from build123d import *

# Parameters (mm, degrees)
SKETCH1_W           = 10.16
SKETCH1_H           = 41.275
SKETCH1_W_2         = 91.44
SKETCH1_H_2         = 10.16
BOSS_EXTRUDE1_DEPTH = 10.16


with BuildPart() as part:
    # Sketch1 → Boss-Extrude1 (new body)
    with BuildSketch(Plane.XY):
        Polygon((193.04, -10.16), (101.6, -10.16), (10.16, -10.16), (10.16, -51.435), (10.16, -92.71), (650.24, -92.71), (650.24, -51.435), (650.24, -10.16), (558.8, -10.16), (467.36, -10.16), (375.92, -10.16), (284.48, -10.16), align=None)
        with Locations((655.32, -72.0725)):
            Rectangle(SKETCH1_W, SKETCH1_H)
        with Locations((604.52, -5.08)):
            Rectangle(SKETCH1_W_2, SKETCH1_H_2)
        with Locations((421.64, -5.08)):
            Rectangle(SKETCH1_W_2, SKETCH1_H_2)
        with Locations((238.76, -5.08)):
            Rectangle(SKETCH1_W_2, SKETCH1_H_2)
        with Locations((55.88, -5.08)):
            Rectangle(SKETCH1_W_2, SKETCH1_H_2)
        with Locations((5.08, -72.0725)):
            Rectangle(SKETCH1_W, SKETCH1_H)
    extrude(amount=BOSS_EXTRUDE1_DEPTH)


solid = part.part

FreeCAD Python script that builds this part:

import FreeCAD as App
import Part
import Sketcher
Q = App.Units.Quantity


def add_polygon(sketch, points):
    """Adds a closed chain of lines whose ends are joined by coincident constraints."""
    first, n = sketch.GeometryCount, len(points)
    for a, b in zip(points, points[1:] + points[:1]):
        sketch.addGeometry(Part.LineSegment(App.Vector(*a, 0), App.Vector(*b, 0)), False)
    for i in range(n):
        sketch.addConstraint(Sketcher.Constraint("Coincident", first + i, 2, first + (i + 1) % n, 1))

doc = App.newDocument("Part")
body = doc.addObject("PartDesign::Body", "Body")

sketch1 = body.newObject("Sketcher::SketchObject", "Sketch")
sketch1.AttachmentSupport = (doc.getObject("XY_Plane"), [""])
sketch1.MapMode = "FlatFace"
add_polygon(sketch1, [(660.4, -92.71), (660.4, -51.435), (650.24, -51.435), (650.24, 0), (558.8, 0), (558.8, -10.16), (467.36, -10.16), (467.36, 0), (375.92, 0), (375.92, -10.16), (284.48, -10.16), (284.48, 0), (193.04, 0), (193.04, -10.16), (101.6, -10.16), (101.6, 0), (10.16, 0), (10.16, -51.435), (0, -51.435), (0, -92.71)])
sketch1.addConstraint([
    Sketcher.Constraint("Vertical", 0),
    Sketcher.Constraint("Horizontal", 1),
    Sketcher.Constraint("Vertical", 2),
    Sketcher.Constraint("Horizontal", 3),
    Sketcher.Constraint("Vertical", 4),
    Sketcher.Constraint("Horizontal", 5),
    Sketcher.Constraint("Vertical", 6),
    Sketcher.Constraint("Horizontal", 7),
    Sketcher.Constraint("Vertical", 8),
    Sketcher.Constraint("Horizontal", 9),
    Sketcher.Constraint("Vertical", 10),
    Sketcher.Constraint("Horizontal", 11),
    Sketcher.Constraint("Vertical", 12),
    Sketcher.Constraint("Horizontal", 13),
    Sketcher.Constraint("Vertical", 14),
    Sketcher.Constraint("Horizontal", 15),
    Sketcher.Constraint("Vertical", 16),
    Sketcher.Constraint("Horizontal", 17),
    Sketcher.Constraint("Vertical", 18),
    Sketcher.Constraint("Horizontal", 19),
    Sketcher.Constraint("PointOnObject", 2, 2, -1),
    Sketcher.Constraint("PointOnObject", 6, 2, -1),
    Sketcher.Constraint("PointOnObject", 10, 2, -1),
    Sketcher.Constraint("PointOnObject", 14, 2, -1),
    Sketcher.Constraint("PointOnObject", 17, 2, -2),
    Sketcher.Constraint("Horizontal", 5, 2, 8, 2),
    Sketcher.Constraint("Horizontal", 9, 2, 12, 2),
    Sketcher.Constraint("Horizontal", 1, 2, 16, 2),
    Sketcher.Constraint("Equal", 3, 5),
    Sketcher.Constraint("Equal", 5, 7),
    Sketcher.Constraint("Equal", 7, 9),
    Sketcher.Constraint("Equal", 9, 11),
    Sketcher.Constraint("Equal", 11, 13),
    Sketcher.Constraint("Equal", 13, 15),
    Sketcher.Constraint("Equal", 1, 17),
    Sketcher.Constraint("Equal", 17, 4),
    Sketcher.Constraint("DistanceX", 19, 1, 19, 2, Q("26 in")),
    Sketcher.Constraint("DistanceX", 1, 2, 1, 1, Q("0.4 in")),
    Sketcher.Constraint("DistanceY", 0, 1, 0, 2, Q("1.625 in")),
    Sketcher.Constraint("DistanceY", 2, 1, 2, 2, Q("2.025 in")),
])
pad1 = body.newObject("PartDesign::Pad", "Pad")
pad1.Profile = sketch1
pad1.Length = Q("0.4 in")

doc.recompute()
